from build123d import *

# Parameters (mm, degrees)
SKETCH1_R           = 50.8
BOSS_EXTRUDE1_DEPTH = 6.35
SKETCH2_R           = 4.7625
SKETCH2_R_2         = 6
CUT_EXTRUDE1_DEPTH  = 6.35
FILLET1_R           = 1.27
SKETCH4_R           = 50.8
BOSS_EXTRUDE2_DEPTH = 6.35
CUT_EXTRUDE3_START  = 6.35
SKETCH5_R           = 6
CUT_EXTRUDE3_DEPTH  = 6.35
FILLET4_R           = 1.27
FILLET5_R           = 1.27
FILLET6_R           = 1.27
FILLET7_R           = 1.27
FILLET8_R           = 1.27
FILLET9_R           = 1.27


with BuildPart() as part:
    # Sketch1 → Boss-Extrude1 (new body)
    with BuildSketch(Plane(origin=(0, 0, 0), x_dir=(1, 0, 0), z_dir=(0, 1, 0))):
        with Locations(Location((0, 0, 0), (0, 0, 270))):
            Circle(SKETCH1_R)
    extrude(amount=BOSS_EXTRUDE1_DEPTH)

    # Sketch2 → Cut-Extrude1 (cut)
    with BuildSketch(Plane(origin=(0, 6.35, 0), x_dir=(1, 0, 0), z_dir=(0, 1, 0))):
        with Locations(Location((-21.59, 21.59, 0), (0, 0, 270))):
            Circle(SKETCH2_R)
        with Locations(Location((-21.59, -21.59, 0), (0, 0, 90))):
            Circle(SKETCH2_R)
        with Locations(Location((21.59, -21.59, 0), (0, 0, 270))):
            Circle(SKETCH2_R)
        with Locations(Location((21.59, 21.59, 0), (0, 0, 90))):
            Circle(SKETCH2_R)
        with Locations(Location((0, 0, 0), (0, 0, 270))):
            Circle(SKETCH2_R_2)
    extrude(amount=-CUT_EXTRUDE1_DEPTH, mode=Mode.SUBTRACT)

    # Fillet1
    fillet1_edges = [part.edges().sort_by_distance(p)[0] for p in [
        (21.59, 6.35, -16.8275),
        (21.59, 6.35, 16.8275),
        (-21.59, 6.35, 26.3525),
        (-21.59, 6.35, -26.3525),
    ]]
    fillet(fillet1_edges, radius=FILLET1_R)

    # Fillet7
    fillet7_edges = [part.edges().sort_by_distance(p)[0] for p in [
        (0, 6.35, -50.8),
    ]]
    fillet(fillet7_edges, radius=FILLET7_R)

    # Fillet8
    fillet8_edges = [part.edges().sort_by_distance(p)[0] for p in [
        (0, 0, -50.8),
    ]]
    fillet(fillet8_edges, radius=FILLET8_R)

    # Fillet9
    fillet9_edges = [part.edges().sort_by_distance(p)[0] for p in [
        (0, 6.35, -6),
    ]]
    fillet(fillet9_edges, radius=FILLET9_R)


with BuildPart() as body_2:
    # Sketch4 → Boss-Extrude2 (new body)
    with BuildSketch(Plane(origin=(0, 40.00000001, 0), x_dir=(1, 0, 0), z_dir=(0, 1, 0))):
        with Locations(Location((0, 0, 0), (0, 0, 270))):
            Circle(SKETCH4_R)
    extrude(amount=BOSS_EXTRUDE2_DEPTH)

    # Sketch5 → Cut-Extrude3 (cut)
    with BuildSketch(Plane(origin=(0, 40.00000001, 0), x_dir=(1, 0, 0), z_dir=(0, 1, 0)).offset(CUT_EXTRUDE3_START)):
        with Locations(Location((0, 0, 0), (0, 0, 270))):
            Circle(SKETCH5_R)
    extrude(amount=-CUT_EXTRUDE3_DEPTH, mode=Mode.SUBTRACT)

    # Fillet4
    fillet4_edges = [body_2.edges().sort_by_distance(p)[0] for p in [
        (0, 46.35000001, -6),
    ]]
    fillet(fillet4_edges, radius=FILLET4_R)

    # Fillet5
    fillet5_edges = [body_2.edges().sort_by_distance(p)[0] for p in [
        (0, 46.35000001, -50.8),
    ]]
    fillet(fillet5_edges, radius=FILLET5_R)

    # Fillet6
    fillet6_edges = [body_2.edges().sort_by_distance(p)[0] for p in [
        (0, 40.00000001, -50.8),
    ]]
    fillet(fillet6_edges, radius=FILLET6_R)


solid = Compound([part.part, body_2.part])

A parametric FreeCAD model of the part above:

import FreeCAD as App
import Part
import Sketcher
Q = App.Units.Quantity


def edges_at(feature, points):
    """Names of the edges that pass closest to the given points."""
    edges = feature.Shape.Edges
    near = lambda p: min(range(len(edges)), key=lambda i: edges[i].distToShape(Part.Vertex(*p))[0])
    return sorted({f"Edge{near(p) + 1}" for p in points})

doc = App.newDocument("Part")
body = doc.addObject("PartDesign::Body", "Body")

sketch1 = body.newObject("Sketcher::SketchObject", "Sketch")
sketch1.AttachmentSupport = (doc.getObject("XZ_Plane"), [""])
sketch1.MapMode = "FlatFace"
sketch1.addGeometry(Part.Circle(App.Vector(0, 0, 0), App.Vector(0, 0, 1), 51), False)
sketch1.addConstraint([
    Sketcher.Constraint("Coincident", 0, 3, -1, 1),
    Sketcher.Constraint("Diameter", 0, Q("4 in")),
])
pad1 = body.newObject("PartDesign::Pad", "Pad")
pad1.Profile = sketch1
pad1.Length = Q("0.25 in")
pad1.Reversed = True

sketch2 = body.newObject("Sketcher::SketchObject", "Sketch001")
sketch2.AttachmentSupport = (doc.getObject("XZ_Plane"), [""])
sketch2.MapMode = "FlatFace"
sketch2.AttachmentOffset = App.Placement(App.Vector(0, 0, -0.25 * 25.4), App.Rotation())
sketch2.addGeometry([
    Part.Circle(App.Vector(-21.6, -21.6, 0), App.Vector(0, 0, 1), 4.8),
    Part.Circle(App.Vector(-21.6, 21.6, 0), App.Vector(0, 0, 1), 4.8),
    Part.Circle(App.Vector(21.6, 21.6, 0), App.Vector(0, 0, 1), 4.8),
    Part.Circle(App.Vector(21.6, -21.6, 0), App.Vector(0, 0, 1), 4.8),
    Part.Circle(App.Vector(0, 0, 0), App.Vector(0, 0, 1), 6),
], False)
sketch2.addConstraint([
    Sketcher.Constraint("Coincident", 4, 3, -1, 1),
    Sketcher.Constraint("Equal", 0, 1),
    Sketcher.Constraint("Equal", 1, 2),
    Sketcher.Constraint("Equal", 2, 3),
    Sketcher.Constraint("Symmetric", 0, 3, 2, 3, -1, 1),
    Sketcher.Constraint("Symmetric", 1, 3, 3, 3, -1, 1),
    Sketcher.Constraint("Symmetric", 1, 3, 2, 3, -2),
    Sketcher.Constraint("Diameter", 0, Q("0.375 in")),
    Sketcher.Constraint("DistanceY", 0, 3, 1, 3, Q("1.7 in")),
    Sketcher.Constraint("DistanceX", 1, 3, 2, 3, Q("1.7 in")),
    Sketcher.Constraint("Diameter", 4, Q("12 mm")),
])
pocket1 = body.newObject("PartDesign::Pocket", "Pocket")
pocket1.Profile = sketch2
pocket1.Length = Q("0.25 in")
pocket1.Reversed = True
doc.recompute()

fillet = body.newObject("PartDesign::Fillet", "Fillet")
fillet.Base = (pocket1, edges_at(pocket1, [
    (21.59, 6.35, -16.828),
    (21.59, 6.35, 16.828),
    (-21.59, 6.35, 26.352),
    (-21.59, 6.35, -26.352),
]))
fillet.Radius = Q("0.05 in")
doc.recompute()

fillet2 = body.newObject("PartDesign::Fillet", "Fillet001")
fillet2.Base = (fillet, edges_at(fillet, [(0, 6.35, -50.8)]))
fillet2.Radius = Q("0.05 in")
doc.recompute()

fillet3 = body.newObject("PartDesign::Fillet", "Fillet002")
fillet3.Base = (fillet2, edges_at(fillet2, [(0, 0, -50.8)]))
fillet3.Radius = Q("0.05 in")
doc.recompute()

fillet4 = body.newObject("PartDesign::Fillet", "Fillet003")
fillet4.Base = (fillet3, edges_at(fillet3, [(0, 6.35, -6)]))
fillet4.Radius = Q("0.05 in")
body2 = doc.addObject("PartDesign::Body", "Body001")

sketch3 = body2.newObject("Sketcher::SketchObject", "Sketch002")
sketch3.AttachmentSupport = (doc.getObject("XZ_Plane001"), [""])
sketch3.MapMode = "FlatFace"
sketch3.AttachmentOffset = App.Placement(App.Vector(0, 0, -40), App.Rotation())
sketch3.addGeometry(Part.Circle(App.Vector(0, 0, 0), App.Vector(0, 0, 1), 51), False)
sketch3.addConstraint([
    Sketcher.Constraint("Coincident", 0, 3, -1, 1),
    Sketcher.Constraint("Diameter", 0, Q("4 in")),
])
pad2 = body2.newObject("PartDesign::Pad", "Pad001")
pad2.Profile = sketch3
pad2.Length = Q("0.25 in")
pad2.Reversed = True

sketch4 = body2.newObject("Sketcher::SketchObject", "Sketch003")
sketch4.AttachmentSupport = (doc.getObject("XZ_Plane001"), [""])
sketch4.MapMode = "FlatFace"
sketch4.AttachmentOffset = App.Placement(App.Vector(0, 0, -46.35), App.Rotation())
sketch4.addGeometry(Part.Circle(App.Vector(0, 0, 0), App.Vector(0, 0, 1), 6), False)
sketch4.addConstraint([
    Sketcher.Constraint("Coincident", 0, 3, -1, 1),
    Sketcher.Constraint("Diameter", 0, Q("12 mm")),
])
pocket2 = body2.newObject("PartDesign::Pocket", "Pocket001")
pocket2.Profile = sketch4
pocket2.Length = Q("0.25 in")
pocket2.Reversed = True
doc.recompute()

fillet5 = body2.newObject("PartDesign::Fillet", "Fillet004")
fillet5.Base = (pocket2, edges_at(pocket2, [(0, 46.35, -6)]))
fillet5.Radius = Q("0.05 in")
doc.recompute()

fillet6 = body2.newObject("PartDesign::Fillet", "Fillet005")
fillet6.Base = (fillet5, edges_at(fillet5, [(0, 46.35, -50.8)]))
fillet6.Radius = Q("0.05 in")
doc.recompute()

fillet7 = body2.newObject("PartDesign::Fillet", "Fillet006")
fillet7.Base = (fillet6, edges_at(fillet6, [(0, 40, -50.8)]))
fillet7.Radius = Q("0.05 in")

doc.recompute()
